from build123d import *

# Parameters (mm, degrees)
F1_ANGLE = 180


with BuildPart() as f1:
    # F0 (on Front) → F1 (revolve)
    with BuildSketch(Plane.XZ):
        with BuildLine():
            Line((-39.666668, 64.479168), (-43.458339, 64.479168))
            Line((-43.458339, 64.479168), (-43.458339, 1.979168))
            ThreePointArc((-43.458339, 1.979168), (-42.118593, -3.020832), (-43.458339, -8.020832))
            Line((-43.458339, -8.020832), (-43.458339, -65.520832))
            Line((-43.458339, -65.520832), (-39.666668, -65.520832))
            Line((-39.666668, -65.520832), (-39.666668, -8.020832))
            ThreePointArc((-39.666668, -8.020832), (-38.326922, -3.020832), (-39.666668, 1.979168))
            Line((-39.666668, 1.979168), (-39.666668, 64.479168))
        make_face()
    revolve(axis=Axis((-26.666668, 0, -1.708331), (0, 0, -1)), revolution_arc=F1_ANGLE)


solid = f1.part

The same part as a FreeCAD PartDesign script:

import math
import FreeCAD as App
import Part
import Sketcher
from FreeCAD import Vector
Q = App.Units.Quantity

doc = App.newDocument("Part")
body = doc.addObject("PartDesign::Body", "Body")

# Sketch on XZ plane
sketch1 = body.newObject("Sketcher::SketchObject", "Sketch")
sketch1.AttachmentSupport = (doc.getObject("XZ_Plane"), [""])
sketch1.MapMode = "FlatFace"
sketch1.addGeometry([
    Part.LineSegment(Vector(-39.7, 64.5, 0), Vector(-43.5, 64.5, 0)),  # 0
    Part.LineSegment(Vector(-43.5, 64.5, 0), Vector(-43.5, 2, 0)),  # 1
    Part.ArcOfCircle(Part.Circle(Vector(-52.1, -3, 0), Vector(0, 0, 1), 10), math.radians(-30), math.radians(30)),  # 2
    Part.LineSegment(Vector(-43.5, -8, 0), Vector(-43.5, -65.5, 0)),  # 3
    Part.LineSegment(Vector(-43.5, -65.5, 0), Vector(-39.7, -65.5, 0)),  # 4
    Part.LineSegment(Vector(-39.7, -65.5, 0), Vector(-39.7, -8, 0)),  # 5
    Part.ArcOfCircle(Part.Circle(Vector(-48.3, -3, 0), Vector(0, 0, 1), 10), math.radians(-30), math.radians(30)),  # 6
    Part.LineSegment(Vector(-39.7, 2, 0), Vector(-39.7, 64.5, 0)),  # 7
], False)
sketch1.addGeometry(Part.LineSegment(Vector(-26.7, 64.5, 0), Vector(-26.7, -65.5, 0)), True)  # axis
sketch1.addConstraint([
    Sketcher.Constraint("Coincident", 0, 2, 1, 1),
    Sketcher.Constraint("Coincident", 1, 2, 2, 2),
    Sketcher.Constraint("Coincident", 2, 1, 3, 1),
    Sketcher.Constraint("Coincident", 3, 2, 4, 1),
    Sketcher.Constraint("Coincident", 4, 2, 5, 1),
    Sketcher.Constraint("Coincident", 5, 2, 6, 1),
    Sketcher.Constraint("Coincident", 6, 2, 7, 1),
    Sketcher.Constraint("Coincident", 7, 2, 0, 1),
    Sketcher.Constraint("Horizontal", 0),
    Sketcher.Constraint("Vertical", 1),
    Sketcher.Constraint("Vertical", 3),
    Sketcher.Constraint("Horizontal", 4),
    Sketcher.Constraint("Vertical", 5),
    Sketcher.Constraint("Vertical", 7),
    Sketcher.Constraint("Vertical", 8),
    Sketcher.Constraint("Equal", 2, 6),
    Sketcher.Constraint("Horizontal", 2, 3, 6, 3),
    Sketcher.Constraint("Horizontal", 2, 1, 5, 2),
    Sketcher.Constraint("Horizontal", 1, 2, 6, 2),
    Sketcher.Constraint("Horizontal", 7, 2, 8, 1),
    Sketcher.Constraint("Horizontal", 4, 2, 8, 2),
    Sketcher.Constraint("Vertical", 1, 2, 2, 1),
    Sketcher.Constraint("Radius", 2, Q("10 mm")),
    Sketcher.Constraint("DistanceY", 8, 2, 8, 1, Q("130 mm")),
    Sketcher.Constraint("DistanceY", 1, 2, 1, 1, Q("62.5 mm")),
    Sketcher.Constraint("DistanceY", 3, 2, 3, 1, Q("57.5 mm")),
    Sketcher.Constraint("DistanceX", 7, 2, 8, 1, Q("13 mm")),
    Sketcher.Constraint("DistanceX", 0, 2, 0, 1, Q("3.791671 mm")),
    Sketcher.Constraint("DistanceY", 2, 3, -1, 1, Q("3.020832 mm")),
    Sketcher.Constraint("DistanceX", 6, 3, -1, 1, Q("48.326922 mm")),
])
revolution = body.newObject("PartDesign::Revolution", "Revolution")
revolution.Profile = sketch1
revolution.ReferenceAxis = (sketch1, ["Axis0"])
revolution.Angle = 180

doc.recompute()
